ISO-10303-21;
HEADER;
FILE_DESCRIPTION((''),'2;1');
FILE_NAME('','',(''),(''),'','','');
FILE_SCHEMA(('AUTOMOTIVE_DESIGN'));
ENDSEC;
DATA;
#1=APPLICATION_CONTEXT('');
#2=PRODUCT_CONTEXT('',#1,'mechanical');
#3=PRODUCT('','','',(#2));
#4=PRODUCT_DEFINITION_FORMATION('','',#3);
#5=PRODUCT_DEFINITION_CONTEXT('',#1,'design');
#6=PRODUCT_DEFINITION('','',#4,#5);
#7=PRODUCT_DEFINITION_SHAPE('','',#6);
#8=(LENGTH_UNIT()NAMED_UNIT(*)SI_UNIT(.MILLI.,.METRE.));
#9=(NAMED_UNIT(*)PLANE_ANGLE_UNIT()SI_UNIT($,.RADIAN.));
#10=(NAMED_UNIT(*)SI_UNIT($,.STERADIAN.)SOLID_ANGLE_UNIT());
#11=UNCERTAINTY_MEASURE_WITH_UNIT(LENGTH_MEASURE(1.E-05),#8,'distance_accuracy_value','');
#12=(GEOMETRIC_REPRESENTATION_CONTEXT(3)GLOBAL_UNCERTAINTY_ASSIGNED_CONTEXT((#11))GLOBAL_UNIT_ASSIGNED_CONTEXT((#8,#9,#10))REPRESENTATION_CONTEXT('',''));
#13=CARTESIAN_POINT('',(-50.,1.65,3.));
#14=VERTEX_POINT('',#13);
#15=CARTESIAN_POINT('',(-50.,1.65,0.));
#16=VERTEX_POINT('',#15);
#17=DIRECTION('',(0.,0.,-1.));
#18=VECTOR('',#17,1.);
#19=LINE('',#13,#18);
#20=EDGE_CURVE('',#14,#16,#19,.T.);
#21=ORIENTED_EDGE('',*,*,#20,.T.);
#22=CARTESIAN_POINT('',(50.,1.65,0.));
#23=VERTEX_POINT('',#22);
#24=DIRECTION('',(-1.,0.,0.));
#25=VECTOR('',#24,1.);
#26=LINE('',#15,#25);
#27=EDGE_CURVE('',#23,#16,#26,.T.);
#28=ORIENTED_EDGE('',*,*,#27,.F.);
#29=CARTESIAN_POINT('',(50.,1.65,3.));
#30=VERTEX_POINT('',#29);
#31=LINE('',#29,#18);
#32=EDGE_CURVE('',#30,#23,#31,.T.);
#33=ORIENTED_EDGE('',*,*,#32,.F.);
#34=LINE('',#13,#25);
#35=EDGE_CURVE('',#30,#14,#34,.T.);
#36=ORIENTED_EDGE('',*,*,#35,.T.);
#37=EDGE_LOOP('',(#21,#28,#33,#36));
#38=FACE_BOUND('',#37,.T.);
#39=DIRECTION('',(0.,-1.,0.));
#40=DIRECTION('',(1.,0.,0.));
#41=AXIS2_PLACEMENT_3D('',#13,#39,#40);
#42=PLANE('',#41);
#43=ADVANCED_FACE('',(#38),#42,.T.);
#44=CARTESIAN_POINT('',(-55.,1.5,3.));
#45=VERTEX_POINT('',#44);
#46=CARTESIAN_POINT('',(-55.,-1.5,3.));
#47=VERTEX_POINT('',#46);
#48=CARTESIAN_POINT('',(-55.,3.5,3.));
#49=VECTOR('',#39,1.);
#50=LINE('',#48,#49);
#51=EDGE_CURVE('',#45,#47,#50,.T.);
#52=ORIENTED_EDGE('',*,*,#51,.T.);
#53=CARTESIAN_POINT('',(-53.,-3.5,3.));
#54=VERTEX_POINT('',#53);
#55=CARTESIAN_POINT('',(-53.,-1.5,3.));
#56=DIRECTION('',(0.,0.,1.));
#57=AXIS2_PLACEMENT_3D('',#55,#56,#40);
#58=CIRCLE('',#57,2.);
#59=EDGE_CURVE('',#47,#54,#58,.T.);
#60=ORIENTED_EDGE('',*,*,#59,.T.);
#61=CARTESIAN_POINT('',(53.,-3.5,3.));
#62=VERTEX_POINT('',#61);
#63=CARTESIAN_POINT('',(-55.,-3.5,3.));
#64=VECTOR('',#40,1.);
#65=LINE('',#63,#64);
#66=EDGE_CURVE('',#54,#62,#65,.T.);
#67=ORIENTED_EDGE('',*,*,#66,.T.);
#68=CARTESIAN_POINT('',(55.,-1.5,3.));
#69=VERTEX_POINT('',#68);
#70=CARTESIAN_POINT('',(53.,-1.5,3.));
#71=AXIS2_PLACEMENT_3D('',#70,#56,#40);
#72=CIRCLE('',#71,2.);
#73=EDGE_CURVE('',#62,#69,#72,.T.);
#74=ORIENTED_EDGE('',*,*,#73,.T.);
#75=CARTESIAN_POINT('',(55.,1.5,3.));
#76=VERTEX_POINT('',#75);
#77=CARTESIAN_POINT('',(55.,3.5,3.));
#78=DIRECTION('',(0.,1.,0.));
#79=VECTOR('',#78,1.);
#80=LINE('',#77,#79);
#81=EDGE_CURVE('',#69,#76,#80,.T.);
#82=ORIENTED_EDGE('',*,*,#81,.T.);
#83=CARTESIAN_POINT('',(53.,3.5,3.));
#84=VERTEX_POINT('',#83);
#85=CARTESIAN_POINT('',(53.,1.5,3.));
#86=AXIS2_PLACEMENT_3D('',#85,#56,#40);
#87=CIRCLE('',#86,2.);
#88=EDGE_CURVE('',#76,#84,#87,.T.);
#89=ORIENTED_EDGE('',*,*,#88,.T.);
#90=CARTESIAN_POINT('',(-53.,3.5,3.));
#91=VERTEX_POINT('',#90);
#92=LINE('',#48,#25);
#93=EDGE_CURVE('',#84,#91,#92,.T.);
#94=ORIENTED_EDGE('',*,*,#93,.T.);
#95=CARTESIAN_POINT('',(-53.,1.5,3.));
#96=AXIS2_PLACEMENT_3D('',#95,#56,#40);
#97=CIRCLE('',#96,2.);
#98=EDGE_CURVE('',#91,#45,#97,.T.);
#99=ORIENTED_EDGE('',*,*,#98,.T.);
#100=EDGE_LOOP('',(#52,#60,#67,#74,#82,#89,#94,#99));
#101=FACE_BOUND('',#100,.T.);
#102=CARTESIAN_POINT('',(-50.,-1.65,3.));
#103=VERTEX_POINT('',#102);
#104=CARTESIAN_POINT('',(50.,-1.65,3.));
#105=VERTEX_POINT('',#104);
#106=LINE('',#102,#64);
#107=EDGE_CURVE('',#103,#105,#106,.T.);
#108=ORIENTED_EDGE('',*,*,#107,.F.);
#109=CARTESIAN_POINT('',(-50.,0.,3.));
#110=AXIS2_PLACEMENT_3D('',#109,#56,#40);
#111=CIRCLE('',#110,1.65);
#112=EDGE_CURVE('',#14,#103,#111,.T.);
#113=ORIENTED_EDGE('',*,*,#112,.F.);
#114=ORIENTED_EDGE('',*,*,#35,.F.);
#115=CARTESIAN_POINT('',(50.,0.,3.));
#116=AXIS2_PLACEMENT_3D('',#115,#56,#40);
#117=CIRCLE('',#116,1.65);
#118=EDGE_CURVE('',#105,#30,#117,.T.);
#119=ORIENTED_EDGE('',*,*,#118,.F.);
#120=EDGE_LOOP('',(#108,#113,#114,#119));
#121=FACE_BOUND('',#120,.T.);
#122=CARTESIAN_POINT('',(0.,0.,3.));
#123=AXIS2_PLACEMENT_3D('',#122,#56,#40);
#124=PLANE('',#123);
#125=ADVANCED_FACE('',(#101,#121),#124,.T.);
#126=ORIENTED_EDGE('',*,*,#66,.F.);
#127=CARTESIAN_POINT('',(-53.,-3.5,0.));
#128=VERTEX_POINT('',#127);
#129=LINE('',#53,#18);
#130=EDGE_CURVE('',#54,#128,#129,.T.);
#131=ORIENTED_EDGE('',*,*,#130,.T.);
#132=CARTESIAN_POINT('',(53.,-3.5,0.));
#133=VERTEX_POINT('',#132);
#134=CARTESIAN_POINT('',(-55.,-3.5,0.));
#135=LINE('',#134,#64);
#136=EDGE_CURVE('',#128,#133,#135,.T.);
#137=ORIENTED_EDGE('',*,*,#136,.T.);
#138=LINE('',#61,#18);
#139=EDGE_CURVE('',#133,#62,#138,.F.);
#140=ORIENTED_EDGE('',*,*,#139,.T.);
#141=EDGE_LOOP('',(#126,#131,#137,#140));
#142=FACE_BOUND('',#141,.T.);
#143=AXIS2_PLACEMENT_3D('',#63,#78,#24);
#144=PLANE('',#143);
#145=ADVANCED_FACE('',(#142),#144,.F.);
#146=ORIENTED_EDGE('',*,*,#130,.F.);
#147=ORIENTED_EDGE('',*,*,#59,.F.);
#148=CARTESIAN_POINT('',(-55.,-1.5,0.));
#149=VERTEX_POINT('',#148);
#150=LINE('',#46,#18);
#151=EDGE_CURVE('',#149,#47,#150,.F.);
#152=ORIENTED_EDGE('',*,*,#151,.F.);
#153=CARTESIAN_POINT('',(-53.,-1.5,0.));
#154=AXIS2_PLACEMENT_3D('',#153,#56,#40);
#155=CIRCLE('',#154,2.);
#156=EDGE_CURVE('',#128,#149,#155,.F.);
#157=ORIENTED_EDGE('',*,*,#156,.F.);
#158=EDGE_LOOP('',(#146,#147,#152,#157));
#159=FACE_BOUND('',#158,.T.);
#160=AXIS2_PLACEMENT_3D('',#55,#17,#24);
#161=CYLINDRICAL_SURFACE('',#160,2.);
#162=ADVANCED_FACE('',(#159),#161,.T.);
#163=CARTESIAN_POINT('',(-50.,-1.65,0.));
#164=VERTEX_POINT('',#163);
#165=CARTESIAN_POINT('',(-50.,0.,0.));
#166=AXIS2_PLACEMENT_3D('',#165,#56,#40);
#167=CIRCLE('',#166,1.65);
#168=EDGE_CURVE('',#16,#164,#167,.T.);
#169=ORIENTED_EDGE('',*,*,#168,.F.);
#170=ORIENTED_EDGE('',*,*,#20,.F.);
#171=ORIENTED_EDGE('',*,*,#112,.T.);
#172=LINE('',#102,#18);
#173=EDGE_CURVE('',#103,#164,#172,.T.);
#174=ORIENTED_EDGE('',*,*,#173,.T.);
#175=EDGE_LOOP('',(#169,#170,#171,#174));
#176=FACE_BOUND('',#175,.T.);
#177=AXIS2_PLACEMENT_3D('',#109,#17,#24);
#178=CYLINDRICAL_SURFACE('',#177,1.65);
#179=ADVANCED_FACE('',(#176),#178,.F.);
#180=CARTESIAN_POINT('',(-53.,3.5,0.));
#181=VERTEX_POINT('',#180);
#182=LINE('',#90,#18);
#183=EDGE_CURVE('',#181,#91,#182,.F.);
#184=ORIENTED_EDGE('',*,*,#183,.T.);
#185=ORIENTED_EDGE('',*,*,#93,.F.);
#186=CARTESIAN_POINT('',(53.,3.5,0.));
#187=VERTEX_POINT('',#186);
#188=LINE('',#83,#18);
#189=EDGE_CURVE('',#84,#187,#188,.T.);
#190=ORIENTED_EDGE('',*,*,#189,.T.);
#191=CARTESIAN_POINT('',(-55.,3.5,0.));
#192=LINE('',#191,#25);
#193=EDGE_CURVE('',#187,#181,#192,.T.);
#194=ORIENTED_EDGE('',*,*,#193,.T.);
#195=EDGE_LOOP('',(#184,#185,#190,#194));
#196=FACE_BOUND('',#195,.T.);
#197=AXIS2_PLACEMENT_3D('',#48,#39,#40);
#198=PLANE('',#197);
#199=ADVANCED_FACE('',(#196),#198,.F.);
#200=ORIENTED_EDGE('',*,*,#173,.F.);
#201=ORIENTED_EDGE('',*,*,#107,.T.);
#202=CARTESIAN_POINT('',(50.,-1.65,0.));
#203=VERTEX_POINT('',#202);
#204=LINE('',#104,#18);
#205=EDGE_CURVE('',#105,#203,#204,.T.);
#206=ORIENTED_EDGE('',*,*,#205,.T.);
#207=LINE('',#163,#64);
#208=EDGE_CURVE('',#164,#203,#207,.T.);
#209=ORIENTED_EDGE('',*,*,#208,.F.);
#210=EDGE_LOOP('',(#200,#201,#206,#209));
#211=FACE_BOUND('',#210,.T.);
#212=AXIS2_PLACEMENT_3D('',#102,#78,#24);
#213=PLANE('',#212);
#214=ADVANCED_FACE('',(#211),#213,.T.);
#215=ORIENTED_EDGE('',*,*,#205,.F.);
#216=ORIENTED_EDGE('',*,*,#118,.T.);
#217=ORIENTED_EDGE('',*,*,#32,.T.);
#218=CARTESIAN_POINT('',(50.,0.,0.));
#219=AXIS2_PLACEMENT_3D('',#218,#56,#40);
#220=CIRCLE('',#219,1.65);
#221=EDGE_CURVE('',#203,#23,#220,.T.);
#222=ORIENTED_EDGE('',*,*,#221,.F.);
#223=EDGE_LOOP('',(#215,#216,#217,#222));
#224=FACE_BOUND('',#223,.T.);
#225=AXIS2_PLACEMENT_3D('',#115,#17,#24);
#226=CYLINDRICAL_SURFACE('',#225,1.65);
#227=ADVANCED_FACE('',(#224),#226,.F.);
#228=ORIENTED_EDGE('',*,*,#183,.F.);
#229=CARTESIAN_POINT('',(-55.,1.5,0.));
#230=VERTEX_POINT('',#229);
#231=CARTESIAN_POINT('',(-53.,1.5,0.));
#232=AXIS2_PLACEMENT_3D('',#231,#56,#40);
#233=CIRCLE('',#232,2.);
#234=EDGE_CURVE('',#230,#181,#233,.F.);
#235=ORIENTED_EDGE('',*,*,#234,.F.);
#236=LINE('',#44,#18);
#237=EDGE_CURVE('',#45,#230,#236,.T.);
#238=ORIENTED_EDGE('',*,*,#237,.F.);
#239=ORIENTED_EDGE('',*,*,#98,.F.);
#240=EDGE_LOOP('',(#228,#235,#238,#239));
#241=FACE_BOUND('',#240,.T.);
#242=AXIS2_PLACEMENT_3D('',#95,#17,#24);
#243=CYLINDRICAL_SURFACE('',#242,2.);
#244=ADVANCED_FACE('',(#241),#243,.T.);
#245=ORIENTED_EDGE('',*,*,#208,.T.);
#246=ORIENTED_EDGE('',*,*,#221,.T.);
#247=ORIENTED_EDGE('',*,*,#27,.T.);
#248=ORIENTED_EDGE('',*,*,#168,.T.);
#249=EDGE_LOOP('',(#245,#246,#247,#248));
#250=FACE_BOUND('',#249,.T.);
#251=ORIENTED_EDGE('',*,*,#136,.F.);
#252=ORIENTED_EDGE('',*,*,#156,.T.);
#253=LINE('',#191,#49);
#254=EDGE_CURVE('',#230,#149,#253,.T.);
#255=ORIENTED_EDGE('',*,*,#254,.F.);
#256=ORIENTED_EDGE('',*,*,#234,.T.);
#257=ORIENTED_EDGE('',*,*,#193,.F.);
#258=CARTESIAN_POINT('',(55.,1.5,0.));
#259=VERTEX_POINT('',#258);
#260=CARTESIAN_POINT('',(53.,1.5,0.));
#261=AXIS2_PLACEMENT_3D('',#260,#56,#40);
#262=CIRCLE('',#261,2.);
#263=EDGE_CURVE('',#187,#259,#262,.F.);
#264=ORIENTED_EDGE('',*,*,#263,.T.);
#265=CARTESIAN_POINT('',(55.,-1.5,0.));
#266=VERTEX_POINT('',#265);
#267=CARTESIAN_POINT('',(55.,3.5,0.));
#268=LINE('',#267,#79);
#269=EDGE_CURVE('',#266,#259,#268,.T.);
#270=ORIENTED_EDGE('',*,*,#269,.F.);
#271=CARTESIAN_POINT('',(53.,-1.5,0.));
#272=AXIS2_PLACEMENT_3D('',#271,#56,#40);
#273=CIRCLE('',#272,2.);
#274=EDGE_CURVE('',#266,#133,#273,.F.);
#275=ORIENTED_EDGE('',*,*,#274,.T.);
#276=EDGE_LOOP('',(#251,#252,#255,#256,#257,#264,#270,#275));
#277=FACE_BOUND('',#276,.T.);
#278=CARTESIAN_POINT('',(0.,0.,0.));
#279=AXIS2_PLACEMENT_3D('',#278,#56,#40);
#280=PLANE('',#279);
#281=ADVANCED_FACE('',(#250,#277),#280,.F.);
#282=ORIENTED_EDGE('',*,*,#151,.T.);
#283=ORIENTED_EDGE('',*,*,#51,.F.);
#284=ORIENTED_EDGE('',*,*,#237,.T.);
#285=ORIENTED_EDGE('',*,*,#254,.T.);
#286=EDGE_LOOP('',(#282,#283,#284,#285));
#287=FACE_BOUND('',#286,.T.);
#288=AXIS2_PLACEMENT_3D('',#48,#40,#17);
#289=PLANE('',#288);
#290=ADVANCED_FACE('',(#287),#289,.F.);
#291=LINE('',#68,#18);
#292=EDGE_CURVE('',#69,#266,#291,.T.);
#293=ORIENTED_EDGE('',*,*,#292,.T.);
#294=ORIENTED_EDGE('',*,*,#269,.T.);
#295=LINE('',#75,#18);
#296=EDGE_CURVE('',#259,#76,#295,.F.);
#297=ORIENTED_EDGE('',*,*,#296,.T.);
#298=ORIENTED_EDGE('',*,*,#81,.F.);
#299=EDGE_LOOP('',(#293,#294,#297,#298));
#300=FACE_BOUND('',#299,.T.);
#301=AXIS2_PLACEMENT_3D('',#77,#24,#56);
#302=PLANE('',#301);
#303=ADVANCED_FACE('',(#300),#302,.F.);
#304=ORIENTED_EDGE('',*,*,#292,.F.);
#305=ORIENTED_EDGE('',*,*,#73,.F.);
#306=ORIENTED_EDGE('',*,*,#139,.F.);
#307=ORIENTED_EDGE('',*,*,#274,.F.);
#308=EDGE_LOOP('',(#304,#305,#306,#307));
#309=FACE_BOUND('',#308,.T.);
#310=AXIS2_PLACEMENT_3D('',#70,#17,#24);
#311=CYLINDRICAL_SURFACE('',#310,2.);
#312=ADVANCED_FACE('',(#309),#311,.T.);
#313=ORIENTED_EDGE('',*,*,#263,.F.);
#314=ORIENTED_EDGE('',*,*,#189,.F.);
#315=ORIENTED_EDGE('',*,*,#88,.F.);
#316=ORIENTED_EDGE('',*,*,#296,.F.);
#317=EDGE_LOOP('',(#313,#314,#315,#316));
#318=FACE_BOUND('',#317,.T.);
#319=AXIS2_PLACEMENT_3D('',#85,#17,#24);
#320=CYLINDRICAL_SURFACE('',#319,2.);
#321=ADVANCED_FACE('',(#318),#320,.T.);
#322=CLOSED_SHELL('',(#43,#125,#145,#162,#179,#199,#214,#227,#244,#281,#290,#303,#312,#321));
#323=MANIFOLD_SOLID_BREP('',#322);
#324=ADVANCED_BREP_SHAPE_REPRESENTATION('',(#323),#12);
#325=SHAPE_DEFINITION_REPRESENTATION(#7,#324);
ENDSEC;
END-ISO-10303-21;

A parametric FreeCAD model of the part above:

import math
import FreeCAD as App
import Part
import Sketcher

V = App.Vector


def edges_at(feature, points):
    """Names of the edges that pass closest to the given points."""
    edges = feature.Shape.Edges
    near = lambda p: min(range(len(edges)), key=lambda i: edges[i].distToShape(Part.Vertex(*p))[0])
    return sorted({f"Edge{near(p) + 1}" for p in points})


def add_polygon(sketch, points):
    """Adds a closed chain of lines whose ends are joined by coincident constraints."""
    first, n = sketch.GeometryCount, len(points)
    for a, b in zip(points, points[1:] + points[:1]):
        sketch.addGeometry(Part.LineSegment(App.Vector(*a, 0), App.Vector(*b, 0)), False)
    for i in range(n):
        sketch.addConstraint(Sketcher.Constraint("Coincident", first + i, 2, first + (i + 1) % n, 1))

doc = App.newDocument("Part")
body = doc.addObject("PartDesign::Body", "Body")

# Sketch on XY plane
sketch1 = body.newObject("Sketcher::SketchObject", "Sketch")
sketch1.AttachmentSupport = (doc.getObject("XY_Plane"), [""])
sketch1.MapMode = "FlatFace"
add_polygon(sketch1, [(-55, 3.5), (-55, -3.5), (55, -3.5), (55, 3.5)])  # lines 0-3
sketch1.addGeometry(Part.ArcOfCircle(Part.Circle(V(-50, 0, 0), V(0, 0, 1), 1.6), math.radians(90), math.radians(270)), False)  # 4
sketch1.addGeometry(Part.LineSegment(V(-50, 1.6, 0), V(50, 1.6, 0)), False)  # 5
sketch1.addGeometry(Part.ArcOfCircle(Part.Circle(V(50, 0, 0), V(0, 0, 1), 1.6), math.radians(-90), math.radians(90)), False)  # 6
sketch1.addGeometry(Part.LineSegment(V(50, -1.6, 0), V(-50, -1.6, 0)), False)  # 7
sketch1.addConstraint(Sketcher.Constraint("Tangent", 4, 1, 5, 1))
sketch1.addConstraint(Sketcher.Constraint("Tangent", 5, 2, 6, 2))
sketch1.addConstraint(Sketcher.Constraint("Tangent", 6, 1, 7, 1))
sketch1.addConstraint(Sketcher.Constraint("Tangent", 7, 2, 4, 2))
sketch1.addConstraint(Sketcher.Constraint("Vertical", 0))
sketch1.addConstraint(Sketcher.Constraint("Horizontal", 1))
sketch1.addConstraint(Sketcher.Constraint("Vertical", 2))
sketch1.addConstraint(Sketcher.Constraint("Horizontal", 3))
sketch1.addConstraint(Sketcher.Constraint("Horizontal", 5))
sketch1.addConstraint(Sketcher.Constraint("Horizontal", 7))
sketch1.addConstraint(Sketcher.Constraint("Symmetric", 4, 3, 6, 3, -1, 1))
sketch1.addConstraint(Sketcher.Constraint("Symmetric", 0, 2, 2, 2, -1, 1))
sketch1.addConstraint(Sketcher.Constraint("DistanceX", 1, 1, 1, 2, 110.0))
sketch1.addConstraint(Sketcher.Constraint("DistanceX", 5, 1, 5, 2, 100.0))
sketch1.addConstraint(Sketcher.Constraint("DistanceY", 0, 2, 0, 1, 7.0))
sketch1.addConstraint(Sketcher.Constraint("Radius", 4, 1.65))
pad1 = body.newObject("PartDesign::Pad", "Pad")
pad1.Profile = sketch1
pad1.Length = 3
doc.recompute()

fillet = body.newObject("PartDesign::Fillet", "Fillet")
fillet.Base = (pad1, edges_at(pad1, [
    (55, -3.5, 1.5),
    (-55, -3.5, 1.5),
    (-55, 3.5, 1.5),
    (55, 3.5, 1.5),
]))
fillet.Radius = 2

doc.recompute()
